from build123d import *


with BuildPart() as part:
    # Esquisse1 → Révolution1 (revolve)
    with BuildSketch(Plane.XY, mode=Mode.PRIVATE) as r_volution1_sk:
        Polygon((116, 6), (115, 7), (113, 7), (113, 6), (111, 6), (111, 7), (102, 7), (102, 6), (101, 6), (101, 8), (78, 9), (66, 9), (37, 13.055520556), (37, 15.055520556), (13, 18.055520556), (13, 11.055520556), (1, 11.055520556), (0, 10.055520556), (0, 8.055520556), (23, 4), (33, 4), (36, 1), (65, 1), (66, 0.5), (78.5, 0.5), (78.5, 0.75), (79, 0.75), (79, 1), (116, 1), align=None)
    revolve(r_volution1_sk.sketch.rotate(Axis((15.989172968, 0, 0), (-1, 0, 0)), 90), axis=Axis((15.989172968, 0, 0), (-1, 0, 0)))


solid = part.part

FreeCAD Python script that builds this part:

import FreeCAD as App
import Part
import Sketcher

V = App.Vector
Q = App.Units.Quantity


def add_polygon(sketch, points):
    """Adds a closed chain of lines whose ends are joined by coincident constraints."""
    first, n = sketch.GeometryCount, len(points)
    for a, b in zip(points, points[1:] + points[:1]):
        sketch.addGeometry(Part.LineSegment(App.Vector(*a, 0), App.Vector(*b, 0)), False)
    for i in range(n):
        sketch.addConstraint(Sketcher.Constraint("Coincident", first + i, 2, first + (i + 1) % n, 1))

doc = App.newDocument("Part")
body = doc.addObject("PartDesign::Body", "Body")

sketch1 = body.newObject("Sketcher::SketchObject", "Sketch")
sketch1.AttachmentSupport = (doc.getObject("XY_Plane"), [""])
sketch1.MapMode = "FlatFace"
add_polygon(sketch1, [(116, 6), (115, 7), (113, 7), (113, 6), (111, 6), (111, 7), (102, 7), (102, 6), (101, 6), (101, 8), (78, 9), (66, 9), (37, 13.06), (37, 15.06), (13, 18.06), (13, 11.06), (1, 11.06), (0, 10.06), (0, 8.06), (23, 4), (33, 4), (36, 1), (65, 1), (66, 0.5), (78.5, 0.5), (78.5, 0.75), (79, 0.75), (79, 1), (116, 1)])
sketch1.addConstraint(Sketcher.Constraint("Horizontal", 1))
sketch1.addConstraint(Sketcher.Constraint("Vertical", 2))
sketch1.addConstraint(Sketcher.Constraint("Horizontal", 3))
sketch1.addConstraint(Sketcher.Constraint("Vertical", 4))
sketch1.addConstraint(Sketcher.Constraint("Horizontal", 5))
sketch1.addConstraint(Sketcher.Constraint("Vertical", 6))
sketch1.addConstraint(Sketcher.Constraint("Horizontal", 7))
sketch1.addConstraint(Sketcher.Constraint("Vertical", 8))
sketch1.addConstraint(Sketcher.Constraint("Horizontal", 10))
sketch1.addConstraint(Sketcher.Constraint("Vertical", 12))
sketch1.addConstraint(Sketcher.Constraint("Vertical", 14))
sketch1.addConstraint(Sketcher.Constraint("Horizontal", 15))
sketch1.addConstraint(Sketcher.Constraint("Vertical", 17))
sketch1.addConstraint(Sketcher.Constraint("Horizontal", 19))
sketch1.addConstraint(Sketcher.Constraint("Horizontal", 21))
sketch1.addConstraint(Sketcher.Constraint("Horizontal", 23))
sketch1.addConstraint(Sketcher.Constraint("Vertical", 24))
sketch1.addConstraint(Sketcher.Constraint("Horizontal", 25))
sketch1.addConstraint(Sketcher.Constraint("Vertical", 26))
sketch1.addConstraint(Sketcher.Constraint("Horizontal", 27))
sketch1.addConstraint(Sketcher.Constraint("Vertical", 28))
sketch1.addConstraint(Sketcher.Constraint("PointOnObject", 16, 2, -2))
sketch1.addConstraint(Sketcher.Constraint("Perpendicular", 0, 16))
sketch1.addConstraint(Sketcher.Constraint("Perpendicular", 16, 20))
sketch1.addConstraint(Sketcher.Constraint("Horizontal", 1, 2, 4, 2))
sketch1.addConstraint(Sketcher.Constraint("Horizontal", 3, 2, 6, 2))
sketch1.addConstraint(Sketcher.Constraint("Horizontal", 21, 2, 26, 2))
sketch1.addConstraint(Sketcher.Constraint("Horizontal", 7, 2, 28, 2))
sketch1.addConstraint(Sketcher.Constraint("Vertical", 10, 2, 22, 2))
sketch1.addConstraint(Sketcher.Constraint("Equal", 1, 3))
sketch1.addConstraint(Sketcher.Constraint("Equal", 10, 15))
sketch1.addConstraint(Sketcher.Constraint("Equal", 7, 2))
sketch1.addConstraint(Sketcher.Constraint("Equal", 3, 8))
sketch1.addConstraint(Sketcher.Constraint("Equal", 8, 12))
sketch1.addConstraint(Sketcher.Constraint("Equal", 12, 17))
sketch1.addConstraint(Sketcher.Constraint("Equal", 24, 26))
sketch1.addConstraint(Sketcher.Constraint("Equal", 0, 16))
sketch1.addConstraint(Sketcher.Constraint("DistanceX", 1, 2, 1, 1, Q("2 mm")))
sketch1.addConstraint(Sketcher.Constraint("DistanceX", 5, 2, 5, 1, Q("9 mm")))
sketch1.addConstraint(Sketcher.Constraint("DistanceX", 7, 2, 7, 1, Q("1 mm")))
sketch1.addConstraint(Sketcher.Constraint("DistanceX", 10, 2, 10, 1, Q("12 mm")))
sketch1.addConstraint(Sketcher.Constraint("DistanceX", 19, 1, 19, 2, Q("10 mm")))
sketch1.addConstraint(Sketcher.Constraint("DistanceX", 21, 1, 21, 2, Q("29 mm")))
sketch1.addConstraint(Sketcher.Constraint("DistanceX", 27, 1, 27, 2, Q("37 mm")))
sketch1.addConstraint(Sketcher.Constraint("DistanceY", 14, 2, 14, 1, Q("7 mm")))
sketch1.addConstraint(Sketcher.Constraint("DistanceY", 28, 1, 28, 2, Q("5 mm")))
sketch1.addConstraint(Sketcher.Constraint("Angle", 0, Q("135 deg")))
sketch1.addConstraint(Sketcher.Constraint("Angle", 18, Q("-10 deg")))
sketch1.addConstraint(Sketcher.Constraint("DistanceX", 23, 1, 23, 2, Q("12.5 mm")))
sketch1.addConstraint(Sketcher.Constraint("DistanceX", 25, 1, 25, 2, Q("0.5 mm")))
sketch1.addConstraint(Sketcher.Constraint("DistanceX", -1, 1, 0, 2, Q("115 mm")))
sketch1.addConstraint(Sketcher.Constraint("DistanceY", -1, 1, 0, 2, Q("7 mm")))
sketch1.addConstraint(Sketcher.Constraint("DistanceY", -1, 1, 9, 2, Q("9 mm")))
sketch1.addConstraint(Sketcher.Constraint("DistanceX", -1, 1, 11, 2, Q("37 mm")))
sketch1.addConstraint(Sketcher.Constraint("DistanceX", -1, 1, 18, 2, Q("23 mm")))
sketch1.addConstraint(Sketcher.Constraint("DistanceY", -1, 1, 18, 2, Q("4 mm")))
sketch1.addConstraint(Sketcher.Constraint("DistanceY", 12, 2, 13, 2, Q("3 mm")))
sketch1.addConstraint(Sketcher.Constraint("DistanceY", 24, 1, 24, 2, Q("0.25 mm")))
revolution = body.newObject("PartDesign::Revolution", "Revolution")
revolution.Profile = sketch1
revolution.ReferenceAxis = (sketch1, ["H_Axis"])
revolution.Angle = 360

doc.recompute()
